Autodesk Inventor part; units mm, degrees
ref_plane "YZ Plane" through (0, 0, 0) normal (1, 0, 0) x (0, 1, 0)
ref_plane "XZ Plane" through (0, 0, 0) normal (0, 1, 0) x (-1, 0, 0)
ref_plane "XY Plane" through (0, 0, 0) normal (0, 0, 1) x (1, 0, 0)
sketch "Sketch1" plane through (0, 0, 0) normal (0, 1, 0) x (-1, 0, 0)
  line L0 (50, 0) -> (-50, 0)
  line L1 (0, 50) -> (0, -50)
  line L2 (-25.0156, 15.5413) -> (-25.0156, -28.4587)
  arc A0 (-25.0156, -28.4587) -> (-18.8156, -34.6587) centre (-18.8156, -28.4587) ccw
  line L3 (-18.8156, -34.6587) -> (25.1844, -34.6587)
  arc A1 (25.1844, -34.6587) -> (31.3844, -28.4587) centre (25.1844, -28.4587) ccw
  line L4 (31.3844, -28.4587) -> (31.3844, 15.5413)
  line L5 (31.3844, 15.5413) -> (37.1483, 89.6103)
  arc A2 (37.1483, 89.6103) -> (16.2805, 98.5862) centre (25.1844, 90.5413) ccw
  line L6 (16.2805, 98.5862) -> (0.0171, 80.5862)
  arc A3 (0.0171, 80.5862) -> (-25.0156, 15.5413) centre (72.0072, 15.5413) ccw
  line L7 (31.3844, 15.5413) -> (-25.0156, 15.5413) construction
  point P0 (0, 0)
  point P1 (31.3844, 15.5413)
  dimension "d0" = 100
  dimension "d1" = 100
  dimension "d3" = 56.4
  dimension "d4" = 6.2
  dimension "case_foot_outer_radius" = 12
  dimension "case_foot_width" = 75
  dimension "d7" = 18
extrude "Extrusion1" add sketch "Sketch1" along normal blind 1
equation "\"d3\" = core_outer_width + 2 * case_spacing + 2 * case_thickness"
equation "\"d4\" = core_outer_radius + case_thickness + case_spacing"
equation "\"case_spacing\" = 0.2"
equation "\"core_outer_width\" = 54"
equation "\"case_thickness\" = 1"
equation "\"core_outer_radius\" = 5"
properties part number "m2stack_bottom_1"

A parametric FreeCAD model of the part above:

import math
import FreeCAD as App
import Part
import Sketcher

V = App.Vector
Q = App.Units.Quantity

doc = App.newDocument("Part")
body = doc.addObject("PartDesign::Body", "Body")

# Sketch on XZ plane
sketch1 = doc.addObject("Sketcher::SketchObject", "Sketch")
body.addObject(sketch1)
sketch1.AttachmentSupport = (doc.XZ_Plane, [""])
sketch1.MapMode = "FlatFace"
sketch1.addGeometry(Part.LineSegment(V(-31, -28, 0), V(-31, 16, 0)), False)
sketch1.addGeometry(Part.LineSegment(V(-31, 16, 0), V(-37, 90, 0)), False)
sketch1.addGeometry(Part.ArcOfCircle(Part.Circle(V(-25, 91, 0), V(0, 0, 1), 12), math.radians(42), math.radians(184)), False)
sketch1.addGeometry(Part.LineSegment(V(-16, 99, 0), V(0, 81, 0)), False)
sketch1.addGeometry(Part.ArcOfCircle(Part.Circle(V(-72, 16, 0), V(0, 0, 1), 97), math.radians(0), math.radians(42)), False)
sketch1.addGeometry(Part.LineSegment(V(25, 16, 0), V(25, -28, 0)), False)
sketch1.addGeometry(Part.ArcOfCircle(Part.Circle(V(19, -28, 0), V(0, 0, 1), 6), math.radians(-90), math.radians(0)), False)
sketch1.addGeometry(Part.LineSegment(V(19, -35, 0), V(-25, -35, 0)), False)
sketch1.addGeometry(Part.ArcOfCircle(Part.Circle(V(-25, -28, 0), V(0, 0, 1), 6), math.radians(180), math.radians(270)), False)
sketch1.addConstraint(Sketcher.Constraint("Coincident", 0, 2, 1, 1))
sketch1.addConstraint(Sketcher.Constraint("Tangent", 1, 2, 2, 2))
sketch1.addConstraint(Sketcher.Constraint("Tangent", 2, 1, 3, 1))
sketch1.addConstraint(Sketcher.Constraint("Tangent", 3, 2, 4, 2))
sketch1.addConstraint(Sketcher.Constraint("Tangent", 4, 1, 5, 1))
sketch1.addConstraint(Sketcher.Constraint("Tangent", 5, 2, 6, 2))
sketch1.addConstraint(Sketcher.Constraint("Tangent", 6, 1, 7, 1))
sketch1.addConstraint(Sketcher.Constraint("Tangent", 7, 2, 8, 2))
sketch1.addConstraint(Sketcher.Constraint("Tangent", 8, 1, 0, 1))
sketch1.addConstraint(Sketcher.Constraint("Vertical", 0))
sketch1.addConstraint(Sketcher.Constraint("Vertical", 5))
sketch1.addConstraint(Sketcher.Constraint("Horizontal", 7))
sketch1.addConstraint(Sketcher.Constraint("Equal", 6, 8))
sketch1.addConstraint(Sketcher.Constraint("Horizontal", 4, 3, 0, 2))
sketch1.addConstraint(Sketcher.Constraint("Vertical", 2, 3, 8, 3))
sketch1.addConstraint(Sketcher.Constraint("Equal", 7, 0))
sketch1.addConstraint(Sketcher.Constraint("Radius", 2, Q("12 mm")))
sketch1.addConstraint(Sketcher.Constraint("Radius", 6, Q("6.2 mm")))
sketch1.addConstraint(Sketcher.Constraint("DistanceY", 4, 3, 2, 3, Q("75 mm")))
sketch1.addConstraint(Sketcher.Constraint("DistanceY", 3, 2, 2, 1, Q("18 mm")))
sketch1.addConstraint(Sketcher.Constraint("DistanceX", 0, 2, 4, 1, Q("56.4 mm")))
sketch1.addConstraint(Sketcher.Constraint("DistanceX", 3, 2, -1, 1, Q("0.017 mm")))
sketch1.addConstraint(Sketcher.Constraint("DistanceY", -1, 1, 2, 3, Q("90.5413 mm")))
pad1 = doc.addObject("PartDesign::Pad", "Pad")
body.addObject(pad1)
pad1.Profile = sketch1
pad1.Length = 1
pad1.Reversed = True

doc.recompute()
